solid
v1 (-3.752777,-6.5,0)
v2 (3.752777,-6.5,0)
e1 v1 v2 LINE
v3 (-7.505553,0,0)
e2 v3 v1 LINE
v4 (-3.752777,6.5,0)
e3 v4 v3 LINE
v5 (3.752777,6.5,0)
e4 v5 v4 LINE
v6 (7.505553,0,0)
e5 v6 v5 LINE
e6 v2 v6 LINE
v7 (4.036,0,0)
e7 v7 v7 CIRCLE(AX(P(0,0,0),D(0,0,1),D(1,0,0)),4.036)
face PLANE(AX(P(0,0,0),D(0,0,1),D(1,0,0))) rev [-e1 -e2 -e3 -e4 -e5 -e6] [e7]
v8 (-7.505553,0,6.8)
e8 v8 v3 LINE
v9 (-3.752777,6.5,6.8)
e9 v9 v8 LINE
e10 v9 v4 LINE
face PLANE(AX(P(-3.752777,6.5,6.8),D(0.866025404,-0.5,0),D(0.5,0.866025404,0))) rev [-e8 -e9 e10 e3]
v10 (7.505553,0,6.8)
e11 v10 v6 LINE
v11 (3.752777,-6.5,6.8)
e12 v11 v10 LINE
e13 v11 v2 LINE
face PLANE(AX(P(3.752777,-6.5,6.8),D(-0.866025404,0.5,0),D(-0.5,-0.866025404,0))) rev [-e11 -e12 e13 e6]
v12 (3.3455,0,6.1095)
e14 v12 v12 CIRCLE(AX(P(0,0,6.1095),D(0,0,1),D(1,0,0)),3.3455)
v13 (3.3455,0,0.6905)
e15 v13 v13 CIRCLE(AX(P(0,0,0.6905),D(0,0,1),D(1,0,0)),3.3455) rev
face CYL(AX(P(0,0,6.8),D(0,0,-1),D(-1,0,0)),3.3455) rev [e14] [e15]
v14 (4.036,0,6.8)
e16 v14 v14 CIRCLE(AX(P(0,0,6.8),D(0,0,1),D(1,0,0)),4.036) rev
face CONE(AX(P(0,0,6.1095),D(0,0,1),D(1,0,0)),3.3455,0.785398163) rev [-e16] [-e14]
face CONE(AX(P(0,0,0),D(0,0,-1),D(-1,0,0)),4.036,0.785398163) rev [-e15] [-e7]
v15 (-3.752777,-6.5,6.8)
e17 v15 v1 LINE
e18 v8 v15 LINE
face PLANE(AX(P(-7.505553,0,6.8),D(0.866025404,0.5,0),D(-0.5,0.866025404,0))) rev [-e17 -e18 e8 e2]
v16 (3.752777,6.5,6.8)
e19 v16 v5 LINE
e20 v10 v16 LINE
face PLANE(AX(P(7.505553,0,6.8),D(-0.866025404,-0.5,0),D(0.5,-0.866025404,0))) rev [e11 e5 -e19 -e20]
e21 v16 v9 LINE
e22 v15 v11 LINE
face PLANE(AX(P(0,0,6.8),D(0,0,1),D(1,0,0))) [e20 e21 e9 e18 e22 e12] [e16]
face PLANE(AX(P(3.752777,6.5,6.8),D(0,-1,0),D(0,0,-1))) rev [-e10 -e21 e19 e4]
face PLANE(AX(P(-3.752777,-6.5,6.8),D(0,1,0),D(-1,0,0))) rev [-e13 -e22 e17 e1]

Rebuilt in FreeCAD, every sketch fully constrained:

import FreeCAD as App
import Part
import Sketcher
from FreeCAD import Vector
Q = App.Units.Quantity


def edges_at(feature, points):
    """Names of the edges that pass closest to the given points."""
    edges = feature.Shape.Edges
    near = lambda p: min(range(len(edges)), key=lambda i: edges[i].distToShape(Part.Vertex(*p))[0])
    return sorted({f"Edge{near(p) + 1}" for p in points})


def add_polygon(sketch, points):
    """Adds a closed chain of lines whose ends are joined by coincident constraints."""
    first, n = sketch.GeometryCount, len(points)
    for a, b in zip(points, points[1:] + points[:1]):
        sketch.addGeometry(Part.LineSegment(App.Vector(*a, 0), App.Vector(*b, 0)), False)
    for i in range(n):
        sketch.addConstraint(Sketcher.Constraint("Coincident", first + i, 2, first + (i + 1) % n, 1))

doc = App.newDocument("Part")
params = doc.addObject("Spreadsheet::Sheet", "Params")
for row, (alias, value) in enumerate([
    ("pad1_length", "6.8 mm"),
    ("chamfer_size", "0.6905 mm"),
], start=1):
    params.set(f"A{row}", alias)
    params.set(f"B{row}", "=" + value)
    params.setAlias(f"B{row}", alias)

body = doc.addObject("PartDesign::Body", "Body")

# Sketch on XY plane
sketch1 = doc.addObject("Sketcher::SketchObject", "Sketch")
body.addObject(sketch1)
sketch1.AttachmentSupport = (doc.XY_Plane, [""])
sketch1.MapMode = "FlatFace"
add_polygon(sketch1, [(-3.8, 6.5), (-7.5, 0), (-3.8, -6.5), (3.8, -6.5), (7.5, 0), (3.8, 6.5)])  # lines 0-5
sketch1.addGeometry(Part.Circle(Vector(0, 0, 0), Vector(0, 0, 1), 3.3), False)  # 6
sketch1.addConstraint([
    Sketcher.Constraint("Horizontal", 2),
    Sketcher.Constraint("Horizontal", 5),
    Sketcher.Constraint("Coincident", 6, 3, -1, 1),
    Sketcher.Constraint("Symmetric", 0, 2, 3, 2, -1, 1),
    Sketcher.Constraint("Symmetric", 1, 2, 4, 2, -1, 1),
    Sketcher.Constraint("PointOnObject", 0, 2, -1),
    Sketcher.Constraint("Parallel", 0, 3),
    Sketcher.Constraint("Vertical", 2, 2, 4, 2),
    Sketcher.Constraint("Angle", 0, Q("-120 deg")),
    Sketcher.Constraint("Diameter", 6, Q("6.691 mm")),
    Sketcher.Constraint("DistanceY", 2, 2, 4, 2, Q("13 mm")),
    Sketcher.Constraint("DistanceX", 2, 1, 2, 2, Q("7.505554 mm")),
])
pad1 = doc.addObject("PartDesign::Pad", "Pad")
body.addObject(pad1)
pad1.Profile = sketch1
pad1.setExpression("Length", "Params.pad1_length")
doc.recompute()

chamfer = doc.addObject("PartDesign::Chamfer", "Chamfer")
body.addObject(chamfer)
chamfer.Base = (pad1, edges_at(pad1, [(-3.345, 0, 0), (-3.345, 0, 6.8)]))
chamfer.setExpression("Size", "Params.chamfer_size")

doc.recompute()
